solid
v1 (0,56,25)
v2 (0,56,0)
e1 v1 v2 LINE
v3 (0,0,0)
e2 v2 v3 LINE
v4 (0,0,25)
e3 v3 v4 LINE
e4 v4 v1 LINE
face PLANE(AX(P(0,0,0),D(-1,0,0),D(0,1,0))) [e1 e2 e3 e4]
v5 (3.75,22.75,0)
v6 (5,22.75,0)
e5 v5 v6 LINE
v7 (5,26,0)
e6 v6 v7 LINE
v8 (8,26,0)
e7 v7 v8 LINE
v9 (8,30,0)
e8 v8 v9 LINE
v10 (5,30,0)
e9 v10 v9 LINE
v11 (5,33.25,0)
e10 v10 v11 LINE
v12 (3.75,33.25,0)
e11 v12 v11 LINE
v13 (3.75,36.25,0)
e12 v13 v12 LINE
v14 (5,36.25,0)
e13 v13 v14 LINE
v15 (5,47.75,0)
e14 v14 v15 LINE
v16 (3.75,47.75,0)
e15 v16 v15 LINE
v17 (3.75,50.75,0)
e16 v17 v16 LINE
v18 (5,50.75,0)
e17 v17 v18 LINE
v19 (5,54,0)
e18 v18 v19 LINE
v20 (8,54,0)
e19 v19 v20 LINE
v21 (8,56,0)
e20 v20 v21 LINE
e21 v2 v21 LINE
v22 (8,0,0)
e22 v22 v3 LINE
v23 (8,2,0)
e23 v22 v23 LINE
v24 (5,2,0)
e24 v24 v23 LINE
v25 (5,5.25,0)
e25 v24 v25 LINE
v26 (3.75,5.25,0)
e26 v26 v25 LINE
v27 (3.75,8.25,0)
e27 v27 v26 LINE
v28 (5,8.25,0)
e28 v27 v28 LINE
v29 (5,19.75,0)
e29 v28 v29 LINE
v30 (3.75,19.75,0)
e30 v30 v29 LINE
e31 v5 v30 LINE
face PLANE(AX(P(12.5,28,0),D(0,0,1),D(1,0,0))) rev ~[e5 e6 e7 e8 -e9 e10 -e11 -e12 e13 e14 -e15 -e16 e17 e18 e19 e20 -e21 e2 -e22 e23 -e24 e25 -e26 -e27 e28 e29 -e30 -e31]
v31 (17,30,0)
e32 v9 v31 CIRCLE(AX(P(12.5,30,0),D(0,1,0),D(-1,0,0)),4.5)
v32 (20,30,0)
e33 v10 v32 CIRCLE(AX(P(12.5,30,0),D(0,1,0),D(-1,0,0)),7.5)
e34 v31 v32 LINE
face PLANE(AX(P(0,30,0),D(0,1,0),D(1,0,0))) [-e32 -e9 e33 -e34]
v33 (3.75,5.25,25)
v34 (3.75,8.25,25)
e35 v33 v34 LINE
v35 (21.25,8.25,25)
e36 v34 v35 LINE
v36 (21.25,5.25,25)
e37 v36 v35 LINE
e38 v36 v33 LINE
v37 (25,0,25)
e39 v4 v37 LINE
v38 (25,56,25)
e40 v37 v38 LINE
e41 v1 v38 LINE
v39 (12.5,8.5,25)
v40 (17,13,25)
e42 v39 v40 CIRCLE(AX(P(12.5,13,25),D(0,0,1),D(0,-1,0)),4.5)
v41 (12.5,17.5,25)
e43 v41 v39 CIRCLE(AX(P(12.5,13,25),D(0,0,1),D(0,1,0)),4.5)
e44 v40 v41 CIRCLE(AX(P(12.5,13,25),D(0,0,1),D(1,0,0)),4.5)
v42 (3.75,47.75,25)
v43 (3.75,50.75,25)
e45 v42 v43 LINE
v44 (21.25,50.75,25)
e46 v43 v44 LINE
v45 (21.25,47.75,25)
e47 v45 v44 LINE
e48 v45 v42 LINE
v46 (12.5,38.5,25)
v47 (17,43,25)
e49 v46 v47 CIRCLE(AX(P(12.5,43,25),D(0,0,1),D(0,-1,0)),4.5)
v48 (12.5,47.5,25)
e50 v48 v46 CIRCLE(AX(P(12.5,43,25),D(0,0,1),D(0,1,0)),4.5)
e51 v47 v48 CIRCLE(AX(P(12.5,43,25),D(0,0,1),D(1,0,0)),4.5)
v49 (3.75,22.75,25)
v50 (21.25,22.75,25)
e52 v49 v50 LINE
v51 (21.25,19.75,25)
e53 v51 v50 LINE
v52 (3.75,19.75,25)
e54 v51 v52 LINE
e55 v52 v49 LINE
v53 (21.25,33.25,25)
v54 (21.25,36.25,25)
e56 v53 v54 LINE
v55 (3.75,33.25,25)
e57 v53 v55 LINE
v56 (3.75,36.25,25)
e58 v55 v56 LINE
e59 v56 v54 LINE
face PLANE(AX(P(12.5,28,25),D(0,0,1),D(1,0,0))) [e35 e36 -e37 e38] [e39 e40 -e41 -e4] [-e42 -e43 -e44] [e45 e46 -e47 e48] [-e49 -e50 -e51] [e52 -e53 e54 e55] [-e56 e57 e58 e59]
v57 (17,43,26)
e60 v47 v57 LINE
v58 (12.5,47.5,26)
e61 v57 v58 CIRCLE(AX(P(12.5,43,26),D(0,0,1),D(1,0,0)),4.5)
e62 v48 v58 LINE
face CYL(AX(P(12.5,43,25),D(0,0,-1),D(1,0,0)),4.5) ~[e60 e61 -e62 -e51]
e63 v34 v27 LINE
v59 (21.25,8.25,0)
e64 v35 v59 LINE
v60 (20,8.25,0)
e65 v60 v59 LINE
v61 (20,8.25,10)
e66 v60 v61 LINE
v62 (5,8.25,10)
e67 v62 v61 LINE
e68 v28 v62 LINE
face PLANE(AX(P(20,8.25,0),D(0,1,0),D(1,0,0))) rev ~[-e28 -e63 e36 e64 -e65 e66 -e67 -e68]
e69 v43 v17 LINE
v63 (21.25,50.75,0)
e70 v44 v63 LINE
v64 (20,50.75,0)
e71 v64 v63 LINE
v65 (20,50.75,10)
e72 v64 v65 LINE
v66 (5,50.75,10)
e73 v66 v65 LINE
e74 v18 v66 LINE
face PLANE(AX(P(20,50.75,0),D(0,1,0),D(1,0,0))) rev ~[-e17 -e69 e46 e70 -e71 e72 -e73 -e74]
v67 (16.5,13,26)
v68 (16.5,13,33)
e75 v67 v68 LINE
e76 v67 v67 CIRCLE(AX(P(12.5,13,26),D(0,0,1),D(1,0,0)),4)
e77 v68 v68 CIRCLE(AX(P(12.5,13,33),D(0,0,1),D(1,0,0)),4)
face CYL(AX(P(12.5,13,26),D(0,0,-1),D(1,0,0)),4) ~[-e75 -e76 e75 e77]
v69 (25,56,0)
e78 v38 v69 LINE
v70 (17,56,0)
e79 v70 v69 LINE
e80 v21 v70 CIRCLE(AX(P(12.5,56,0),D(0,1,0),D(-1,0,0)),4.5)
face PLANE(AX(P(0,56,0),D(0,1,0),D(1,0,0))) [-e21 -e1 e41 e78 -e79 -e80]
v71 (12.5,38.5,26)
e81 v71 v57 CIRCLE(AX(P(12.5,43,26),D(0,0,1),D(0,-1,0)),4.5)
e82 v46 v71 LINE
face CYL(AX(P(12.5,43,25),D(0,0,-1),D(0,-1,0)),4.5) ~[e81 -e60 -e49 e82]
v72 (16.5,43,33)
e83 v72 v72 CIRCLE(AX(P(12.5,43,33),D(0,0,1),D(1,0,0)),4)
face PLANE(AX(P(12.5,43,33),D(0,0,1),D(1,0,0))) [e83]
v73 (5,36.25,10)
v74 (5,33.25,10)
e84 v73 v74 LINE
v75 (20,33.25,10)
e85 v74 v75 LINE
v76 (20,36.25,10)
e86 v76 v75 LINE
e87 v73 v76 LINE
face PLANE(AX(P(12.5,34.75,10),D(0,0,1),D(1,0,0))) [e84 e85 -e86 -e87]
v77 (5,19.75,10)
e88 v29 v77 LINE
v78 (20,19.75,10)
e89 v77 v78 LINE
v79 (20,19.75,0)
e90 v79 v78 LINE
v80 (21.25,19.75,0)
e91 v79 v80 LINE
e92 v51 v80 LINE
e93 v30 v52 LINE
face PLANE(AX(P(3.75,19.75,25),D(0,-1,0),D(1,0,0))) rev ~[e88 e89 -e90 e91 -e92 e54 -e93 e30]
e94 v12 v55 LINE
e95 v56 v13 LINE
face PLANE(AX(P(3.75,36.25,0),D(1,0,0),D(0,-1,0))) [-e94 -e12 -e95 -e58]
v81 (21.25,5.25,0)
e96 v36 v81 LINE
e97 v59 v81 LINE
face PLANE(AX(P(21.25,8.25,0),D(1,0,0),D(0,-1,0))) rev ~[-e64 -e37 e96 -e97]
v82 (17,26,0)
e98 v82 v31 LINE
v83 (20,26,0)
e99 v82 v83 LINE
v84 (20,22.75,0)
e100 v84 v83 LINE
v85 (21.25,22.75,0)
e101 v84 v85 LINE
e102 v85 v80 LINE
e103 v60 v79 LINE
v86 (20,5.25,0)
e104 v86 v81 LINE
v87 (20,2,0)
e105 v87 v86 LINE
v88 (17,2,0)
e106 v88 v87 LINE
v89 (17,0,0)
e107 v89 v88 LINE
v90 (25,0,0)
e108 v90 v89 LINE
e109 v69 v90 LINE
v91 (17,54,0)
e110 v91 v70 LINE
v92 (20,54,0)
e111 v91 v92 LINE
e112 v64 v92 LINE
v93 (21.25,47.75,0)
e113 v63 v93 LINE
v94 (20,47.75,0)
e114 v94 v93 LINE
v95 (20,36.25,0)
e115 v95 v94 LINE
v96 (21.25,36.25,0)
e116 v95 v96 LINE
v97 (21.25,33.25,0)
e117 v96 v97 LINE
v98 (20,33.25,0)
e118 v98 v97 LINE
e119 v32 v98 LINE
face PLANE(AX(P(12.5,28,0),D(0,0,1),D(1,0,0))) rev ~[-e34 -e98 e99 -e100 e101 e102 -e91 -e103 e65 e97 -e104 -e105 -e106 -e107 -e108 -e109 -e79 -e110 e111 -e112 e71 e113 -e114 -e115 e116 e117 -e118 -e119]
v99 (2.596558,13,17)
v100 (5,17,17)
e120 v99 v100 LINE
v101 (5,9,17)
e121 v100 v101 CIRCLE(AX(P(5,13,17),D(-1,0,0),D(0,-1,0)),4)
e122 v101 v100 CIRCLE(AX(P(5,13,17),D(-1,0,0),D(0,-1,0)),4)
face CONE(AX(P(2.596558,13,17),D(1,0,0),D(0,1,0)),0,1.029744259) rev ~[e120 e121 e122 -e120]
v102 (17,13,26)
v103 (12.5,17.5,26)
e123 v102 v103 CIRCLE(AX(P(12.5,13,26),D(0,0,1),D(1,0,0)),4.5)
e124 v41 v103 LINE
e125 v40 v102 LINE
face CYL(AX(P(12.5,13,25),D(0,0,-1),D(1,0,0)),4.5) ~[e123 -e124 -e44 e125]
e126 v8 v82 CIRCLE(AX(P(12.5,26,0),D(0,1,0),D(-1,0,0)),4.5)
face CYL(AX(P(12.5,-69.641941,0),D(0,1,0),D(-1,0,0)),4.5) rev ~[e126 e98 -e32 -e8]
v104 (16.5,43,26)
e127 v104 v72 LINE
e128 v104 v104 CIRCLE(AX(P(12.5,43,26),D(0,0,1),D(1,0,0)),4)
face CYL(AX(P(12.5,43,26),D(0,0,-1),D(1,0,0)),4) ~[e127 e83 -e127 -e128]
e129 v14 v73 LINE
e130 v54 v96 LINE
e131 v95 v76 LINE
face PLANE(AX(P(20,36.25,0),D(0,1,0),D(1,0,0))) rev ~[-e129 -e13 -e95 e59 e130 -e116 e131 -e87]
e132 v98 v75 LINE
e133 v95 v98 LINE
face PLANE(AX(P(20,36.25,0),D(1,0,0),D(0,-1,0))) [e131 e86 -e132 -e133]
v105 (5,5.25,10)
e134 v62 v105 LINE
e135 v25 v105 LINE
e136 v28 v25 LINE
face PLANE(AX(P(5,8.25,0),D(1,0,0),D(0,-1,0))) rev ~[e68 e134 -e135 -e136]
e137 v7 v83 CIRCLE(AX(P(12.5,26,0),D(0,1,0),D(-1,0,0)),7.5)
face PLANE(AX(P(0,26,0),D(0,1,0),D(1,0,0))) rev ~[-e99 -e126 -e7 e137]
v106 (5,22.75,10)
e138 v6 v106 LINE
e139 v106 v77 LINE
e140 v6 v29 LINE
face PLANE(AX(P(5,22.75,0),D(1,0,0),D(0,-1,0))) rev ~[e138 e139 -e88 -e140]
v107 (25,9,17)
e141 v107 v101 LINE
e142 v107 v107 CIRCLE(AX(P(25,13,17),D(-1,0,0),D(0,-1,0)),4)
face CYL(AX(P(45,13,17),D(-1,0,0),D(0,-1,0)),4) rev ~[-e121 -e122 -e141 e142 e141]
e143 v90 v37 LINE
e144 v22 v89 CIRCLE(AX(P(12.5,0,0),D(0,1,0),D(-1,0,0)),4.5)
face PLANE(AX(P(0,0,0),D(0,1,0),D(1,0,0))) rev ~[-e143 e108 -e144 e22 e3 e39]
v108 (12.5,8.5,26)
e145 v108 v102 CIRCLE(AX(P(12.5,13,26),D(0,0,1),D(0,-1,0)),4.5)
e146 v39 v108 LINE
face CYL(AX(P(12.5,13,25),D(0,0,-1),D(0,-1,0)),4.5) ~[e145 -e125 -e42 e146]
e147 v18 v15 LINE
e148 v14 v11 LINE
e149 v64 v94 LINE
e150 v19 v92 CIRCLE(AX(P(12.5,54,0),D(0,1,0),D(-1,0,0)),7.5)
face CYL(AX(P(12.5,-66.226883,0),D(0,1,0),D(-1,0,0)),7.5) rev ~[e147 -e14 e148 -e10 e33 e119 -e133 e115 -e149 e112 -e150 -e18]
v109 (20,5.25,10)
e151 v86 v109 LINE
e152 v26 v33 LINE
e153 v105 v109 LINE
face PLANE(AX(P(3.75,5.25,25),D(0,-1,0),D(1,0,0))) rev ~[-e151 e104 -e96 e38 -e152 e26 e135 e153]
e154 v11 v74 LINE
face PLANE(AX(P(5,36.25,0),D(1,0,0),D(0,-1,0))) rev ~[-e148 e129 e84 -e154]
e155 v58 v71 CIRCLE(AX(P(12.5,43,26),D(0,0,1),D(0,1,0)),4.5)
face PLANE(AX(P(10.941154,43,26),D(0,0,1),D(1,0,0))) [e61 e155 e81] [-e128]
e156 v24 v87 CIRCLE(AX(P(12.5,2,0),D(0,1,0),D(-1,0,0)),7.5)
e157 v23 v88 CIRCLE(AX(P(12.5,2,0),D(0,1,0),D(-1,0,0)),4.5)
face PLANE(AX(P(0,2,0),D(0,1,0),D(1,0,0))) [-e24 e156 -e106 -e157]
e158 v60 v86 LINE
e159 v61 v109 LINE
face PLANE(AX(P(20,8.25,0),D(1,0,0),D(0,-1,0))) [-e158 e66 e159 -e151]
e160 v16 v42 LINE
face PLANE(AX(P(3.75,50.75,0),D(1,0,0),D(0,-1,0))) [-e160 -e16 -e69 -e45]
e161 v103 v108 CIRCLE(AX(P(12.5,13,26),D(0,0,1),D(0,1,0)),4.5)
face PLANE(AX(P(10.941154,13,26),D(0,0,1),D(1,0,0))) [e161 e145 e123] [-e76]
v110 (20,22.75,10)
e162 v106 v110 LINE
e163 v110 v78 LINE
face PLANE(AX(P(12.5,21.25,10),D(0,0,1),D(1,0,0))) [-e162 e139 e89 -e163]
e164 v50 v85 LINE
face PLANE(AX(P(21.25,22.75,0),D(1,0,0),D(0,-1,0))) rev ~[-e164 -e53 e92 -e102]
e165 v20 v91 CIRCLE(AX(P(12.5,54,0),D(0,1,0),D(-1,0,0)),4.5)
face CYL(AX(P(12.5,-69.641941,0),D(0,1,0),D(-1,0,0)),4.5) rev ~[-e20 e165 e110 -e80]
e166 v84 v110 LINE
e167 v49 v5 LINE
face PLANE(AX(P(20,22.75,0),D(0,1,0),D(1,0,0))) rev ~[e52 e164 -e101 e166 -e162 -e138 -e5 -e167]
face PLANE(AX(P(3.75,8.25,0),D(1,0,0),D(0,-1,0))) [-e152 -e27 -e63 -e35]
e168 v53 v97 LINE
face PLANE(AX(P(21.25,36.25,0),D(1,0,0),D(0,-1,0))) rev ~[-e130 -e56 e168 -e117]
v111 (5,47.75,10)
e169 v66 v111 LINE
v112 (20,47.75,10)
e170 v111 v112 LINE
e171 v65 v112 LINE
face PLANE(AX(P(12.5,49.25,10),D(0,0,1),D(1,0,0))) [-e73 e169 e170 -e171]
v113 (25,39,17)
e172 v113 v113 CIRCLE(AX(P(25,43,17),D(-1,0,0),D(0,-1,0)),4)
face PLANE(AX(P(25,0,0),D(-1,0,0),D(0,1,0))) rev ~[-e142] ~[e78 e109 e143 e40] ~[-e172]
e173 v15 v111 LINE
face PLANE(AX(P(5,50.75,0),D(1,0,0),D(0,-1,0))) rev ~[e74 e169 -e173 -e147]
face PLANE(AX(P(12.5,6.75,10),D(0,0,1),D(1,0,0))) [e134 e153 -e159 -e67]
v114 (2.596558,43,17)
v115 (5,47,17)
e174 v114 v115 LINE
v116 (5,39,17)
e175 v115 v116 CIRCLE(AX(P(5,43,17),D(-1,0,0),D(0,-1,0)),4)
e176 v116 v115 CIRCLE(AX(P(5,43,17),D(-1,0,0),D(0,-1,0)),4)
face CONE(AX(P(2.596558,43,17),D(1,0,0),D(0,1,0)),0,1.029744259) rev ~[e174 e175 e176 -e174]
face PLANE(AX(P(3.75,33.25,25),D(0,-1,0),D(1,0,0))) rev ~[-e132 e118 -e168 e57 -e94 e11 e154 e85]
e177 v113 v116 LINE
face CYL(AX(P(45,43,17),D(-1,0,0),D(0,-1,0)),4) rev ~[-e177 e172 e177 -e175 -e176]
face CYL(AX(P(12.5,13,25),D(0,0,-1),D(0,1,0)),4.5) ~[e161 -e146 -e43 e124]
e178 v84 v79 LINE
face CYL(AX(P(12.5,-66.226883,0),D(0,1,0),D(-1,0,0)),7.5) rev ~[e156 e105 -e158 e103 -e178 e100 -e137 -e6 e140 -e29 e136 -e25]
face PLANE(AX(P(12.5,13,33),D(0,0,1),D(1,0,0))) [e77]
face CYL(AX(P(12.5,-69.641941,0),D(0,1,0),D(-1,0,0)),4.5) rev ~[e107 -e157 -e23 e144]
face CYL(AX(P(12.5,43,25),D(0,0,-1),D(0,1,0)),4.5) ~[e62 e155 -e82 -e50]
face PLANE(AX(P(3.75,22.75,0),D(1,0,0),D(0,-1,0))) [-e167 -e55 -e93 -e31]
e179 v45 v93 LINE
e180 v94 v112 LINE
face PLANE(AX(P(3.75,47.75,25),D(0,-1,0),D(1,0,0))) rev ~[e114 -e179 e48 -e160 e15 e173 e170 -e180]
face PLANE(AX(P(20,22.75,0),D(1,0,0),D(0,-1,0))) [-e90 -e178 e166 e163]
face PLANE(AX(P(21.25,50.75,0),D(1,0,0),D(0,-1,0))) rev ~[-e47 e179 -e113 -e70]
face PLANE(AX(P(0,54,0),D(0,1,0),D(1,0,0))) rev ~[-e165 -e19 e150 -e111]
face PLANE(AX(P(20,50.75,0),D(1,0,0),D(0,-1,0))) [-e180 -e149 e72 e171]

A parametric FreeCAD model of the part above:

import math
import FreeCAD as App
import Part
import Sketcher

V = App.Vector
Q = App.Units.Quantity

doc = App.newDocument("Part")
params = doc.addObject("Spreadsheet::Sheet", "Params")
for row, (alias, value) in enumerate([
    ("sketch1_width", "25 mm"),
    ("sketch1_height", "56 mm"),
    ("pad1_length", "25 mm"),
    ("sketch2_diameter", "15 mm"),
    ("hole_diameter", "15 mm"),
    ("sketch3_diameter", "8 mm"),
    ("hole2_diameter", "8 mm"),
    ("hole2_depth", "20 mm"),
    ("sketch4_radius", "4.5 mm"),
    ("pad2_length", "1 mm"),
    ("sketch5_width", "25 mm"),
    ("sketch5_height", "2 mm"),
    ("sketch5_height2", "4 mm"),
    ("pad3_length", "8 mm"),
    ("sketch6_height", "3 mm"),
    ("sketch6_width", "1.25 mm"),
    ("sketch7_height", "3 mm"),
    ("sketch7_width", "17.5 mm"),
    ("pocket2_length", "15 mm"),
    ("sketch8_diameter", "8 mm"),
    ("pad4_length", "7 mm"),
    ("sketch9_diameter", "9 mm"),
    ("hole3_diameter", "9 mm"),
], start=1):
    params.set(f"A{row}", alias)
    params.set(f"B{row}", "=" + value)
    params.setAlias(f"B{row}", alias)

body = doc.addObject("PartDesign::Body", "Body")

sketch1 = doc.addObject("Sketcher::SketchObject", "Sketch")
body.addObject(sketch1)
sketch1.AttachmentSupport = (doc.XY_Plane, [""])
sketch1.MapMode = "FlatFace"
sketch1.addGeometry(Part.LineSegment(V(0, 56, 0), V(0, 0, 0)), False)
sketch1.addGeometry(Part.LineSegment(V(0, 0, 0), V(25, 0, 0)), False)
sketch1.addGeometry(Part.LineSegment(V(25, 0, 0), V(25, 56, 0)), False)
sketch1.addGeometry(Part.LineSegment(V(25, 56, 0), V(0, 56, 0)), False)
sketch1.addConstraint(Sketcher.Constraint("Coincident", 0, 2, 1, 1))
sketch1.addConstraint(Sketcher.Constraint("Coincident", 1, 2, 2, 1))
sketch1.addConstraint(Sketcher.Constraint("Coincident", 2, 2, 3, 1))
sketch1.addConstraint(Sketcher.Constraint("Coincident", 3, 2, 0, 1))
sketch1.addConstraint(Sketcher.Constraint("Vertical", 0))
sketch1.addConstraint(Sketcher.Constraint("Horizontal", 1))
sketch1.addConstraint(Sketcher.Constraint("Vertical", 2))
sketch1.addConstraint(Sketcher.Constraint("Horizontal", 3))
sketch1.addConstraint(Sketcher.Constraint("Coincident", 0, 2, -1, 1))
sketch1.addConstraint(Sketcher.Constraint("DistanceX", 1, 1, 1, 2, Q("25 mm")))
sketch1.addConstraint(Sketcher.Constraint("DistanceY", 0, 2, 0, 1, Q("56 mm")))
sketch1.setExpression("Constraints[9]", "Params.sketch1_width")
sketch1.setExpression("Constraints[10]", "Params.sketch1_height")
pad1 = doc.addObject("PartDesign::Pad", "Pad")
body.addObject(pad1)
pad1.Profile = sketch1
pad1.setExpression("Length", "Params.pad1_length")

sketch2 = doc.addObject("Sketcher::SketchObject", "Sketch001")
body.addObject(sketch2)
sketch2.AttachmentSupport = (doc.XZ_Plane, [""])
sketch2.MapMode = "FlatFace"
sketch2.addGeometry(Part.Circle(V(12, 0, 0), V(0, 0, 1), 8), False)
sketch2.addConstraint(Sketcher.Constraint("PointOnObject", 0, 3, -1))
sketch2.addConstraint(Sketcher.Constraint("Diameter", 0, Q("15 mm")))
sketch2.addConstraint(Sketcher.Constraint("DistanceX", -1, 1, 0, 3, Q("12.5 mm")))
sketch2.setExpression("Constraints[1]", "Params.sketch2_diameter")
doc.recompute()
hole = doc.addObject("PartDesign::Hole", "Hole")
body.addObject(hole)
hole.Profile = sketch2
hole.ThreadType = "None"
hole.setExpression("Diameter", "Params.hole_diameter")
hole.DepthType = "ThroughAll"

sketch3 = doc.addObject("Sketcher::SketchObject", "Sketch002")
body.addObject(sketch3)
sketch3.AttachmentSupport = (doc.YZ_Plane, [""])
sketch3.MapMode = "FlatFace"
sketch3.AttachmentOffset = App.Placement(V(0, 0, 25), App.Rotation())
sketch3.addGeometry(Part.Circle(V(13, 17, 0), V(0, 0, 1), 4), False)
sketch3.addGeometry(Part.Circle(V(43, 17, 0), V(0, 0, 1), 4), False)
sketch3.addConstraint(Sketcher.Constraint("Equal", 0, 1))
sketch3.addConstraint(Sketcher.Constraint("Horizontal", 0, 3, 1, 3))
sketch3.addConstraint(Sketcher.Constraint("Diameter", 0, Q("8 mm")))
sketch3.addConstraint(Sketcher.Constraint("DistanceX", -1, 1, 0, 3, Q("13 mm")))
sketch3.addConstraint(Sketcher.Constraint("DistanceY", -1, 1, 0, 3, Q("17 mm")))
sketch3.addConstraint(Sketcher.Constraint("DistanceX", -1, 1, 1, 3, Q("43 mm")))
sketch3.setExpression("Constraints[2]", "Params.sketch3_diameter")
doc.recompute()
hole2 = doc.addObject("PartDesign::Hole", "Hole001")
body.addObject(hole2)
hole2.Profile = sketch3
hole2.ThreadType = "None"
hole2.setExpression("Diameter", "Params.hole2_diameter")
hole2.DepthType = "Dimension"
hole2.setExpression("Depth", "Params.hole2_depth")
hole2.DrillPoint = "Angled"
hole2.DrillPointAngle = 118

sketch4 = doc.addObject("Sketcher::SketchObject", "Sketch003")
body.addObject(sketch4)
sketch4.AttachmentSupport = (doc.XY_Plane, [""])
sketch4.MapMode = "FlatFace"
sketch4.AttachmentOffset = App.Placement(V(0, 0, 25), App.Rotation())
sketch4.addGeometry(Part.ArcOfCircle(Part.Circle(V(12.5, 13, 0), V(0, 0, 1), 4.5), math.radians(90), math.radians(270)), False)
sketch4.addGeometry(Part.ArcOfCircle(Part.Circle(V(12.5, 13, 0), V(0, 0, 1), 4.5), math.radians(-90), math.radians(0)), False)
sketch4.addGeometry(Part.ArcOfCircle(Part.Circle(V(12.5, 13, 0), V(0, 0, 1), 4.5), math.radians(0), math.radians(90)), False)
sketch4.addGeometry(Part.ArcOfCircle(Part.Circle(V(12.5, 43, 0), V(0, 0, 1), 4.5), math.radians(90), math.radians(270)), False)
sketch4.addGeometry(Part.ArcOfCircle(Part.Circle(V(12.5, 43, 0), V(0, 0, 1), 4.5), math.radians(-90), math.radians(0)), False)
sketch4.addGeometry(Part.ArcOfCircle(Part.Circle(V(12.5, 43, 0), V(0, 0, 1), 4.5), math.radians(0), math.radians(90)), False)
sketch4.addConstraint(Sketcher.Constraint("Tangent", 0, 2, 1, 1))
sketch4.addConstraint(Sketcher.Constraint("Tangent", 1, 2, 2, 1))
sketch4.addConstraint(Sketcher.Constraint("Tangent", 2, 2, 0, 1))
sketch4.addConstraint(Sketcher.Constraint("Tangent", 3, 2, 4, 1))
sketch4.addConstraint(Sketcher.Constraint("Tangent", 4, 2, 5, 1))
sketch4.addConstraint(Sketcher.Constraint("Tangent", 5, 2, 3, 1))
sketch4.addConstraint(Sketcher.Constraint("Equal", 2, 3))
sketch4.addConstraint(Sketcher.Constraint("Horizontal", 2, 3, 1, 2))
sketch4.addConstraint(Sketcher.Constraint("Horizontal", 5, 3, 4, 2))
sketch4.addConstraint(Sketcher.Constraint("Vertical", 2, 3, 3, 3))
sketch4.addConstraint(Sketcher.Constraint("Vertical", 5, 3, 0, 2))
sketch4.addConstraint(Sketcher.Constraint("Vertical", 0, 2, 2, 2))
sketch4.addConstraint(Sketcher.Constraint("Vertical", 2, 2, 3, 2))
sketch4.addConstraint(Sketcher.Constraint("Vertical", 3, 2, 5, 2))
sketch4.addConstraint(Sketcher.Constraint("Radius", 0, Q("4.5 mm")))
sketch4.addConstraint(Sketcher.Constraint("DistanceY", -1, 1, 0, 3, Q("13 mm")))
sketch4.addConstraint(Sketcher.Constraint("DistanceY", -1, 1, 3, 3, Q("43 mm")))
sketch4.addConstraint(Sketcher.Constraint("DistanceX", -1, 1, 1, 2, Q("17 mm")))
sketch4.setExpression("Constraints[14]", "Params.sketch4_radius")
pad2 = doc.addObject("PartDesign::Pad", "Pad001")
body.addObject(pad2)
pad2.Profile = sketch4
pad2.setExpression("Length", "Params.pad2_length")

sketch5 = doc.addObject("Sketcher::SketchObject", "Sketch004")
body.addObject(sketch5)
sketch5.AttachmentSupport = (doc.XY_Plane, [""])
sketch5.MapMode = "FlatFace"
sketch5.addGeometry(Part.LineSegment(V(0, 0, 0), V(0, 2, 0)), False)
sketch5.addGeometry(Part.LineSegment(V(0, 2, 0), V(25, 2, 0)), False)
sketch5.addGeometry(Part.LineSegment(V(25, 2, 0), V(25, 0, 0)), False)
sketch5.addGeometry(Part.LineSegment(V(25, 0, 0), V(0, 0, 0)), False)
sketch5.addGeometry(Part.LineSegment(V(0, 26, 0), V(0, 30, 0)), False)
sketch5.addGeometry(Part.LineSegment(V(0, 30, 0), V(25, 30, 0)), False)
sketch5.addGeometry(Part.LineSegment(V(25, 30, 0), V(25, 26, 0)), False)
sketch5.addGeometry(Part.LineSegment(V(25, 26, 0), V(0, 26, 0)), False)
sketch5.addGeometry(Part.LineSegment(V(0, 54, 0), V(0, 56, 0)), False)
sketch5.addGeometry(Part.LineSegment(V(0, 56, 0), V(25, 56, 0)), False)
sketch5.addGeometry(Part.LineSegment(V(25, 56, 0), V(25, 54, 0)), False)
sketch5.addGeometry(Part.LineSegment(V(25, 54, 0), V(0, 54, 0)), False)
sketch5.addConstraint(Sketcher.Constraint("Coincident", 0, 2, 1, 1))
sketch5.addConstraint(Sketcher.Constraint("Coincident", 1, 2, 2, 1))
sketch5.addConstraint(Sketcher.Constraint("Coincident", 2, 2, 3, 1))
sketch5.addConstraint(Sketcher.Constraint("Coincident", 3, 2, 0, 1))
sketch5.addConstraint(Sketcher.Constraint("Coincident", 4, 2, 5, 1))
sketch5.addConstraint(Sketcher.Constraint("Coincident", 5, 2, 6, 1))
sketch5.addConstraint(Sketcher.Constraint("Coincident", 6, 2, 7, 1))
sketch5.addConstraint(Sketcher.Constraint("Coincident", 7, 2, 4, 1))
sketch5.addConstraint(Sketcher.Constraint("Coincident", 8, 2, 9, 1))
sketch5.addConstraint(Sketcher.Constraint("Coincident", 9, 2, 10, 1))
sketch5.addConstraint(Sketcher.Constraint("Coincident", 10, 2, 11, 1))
sketch5.addConstraint(Sketcher.Constraint("Coincident", 11, 2, 8, 1))
sketch5.addConstraint(Sketcher.Constraint("Vertical", 0))
sketch5.addConstraint(Sketcher.Constraint("Horizontal", 1))
sketch5.addConstraint(Sketcher.Constraint("Vertical", 2))
sketch5.addConstraint(Sketcher.Constraint("Horizontal", 3))
sketch5.addConstraint(Sketcher.Constraint("Vertical", 4))
sketch5.addConstraint(Sketcher.Constraint("Horizontal", 5))
sketch5.addConstraint(Sketcher.Constraint("Vertical", 6))
sketch5.addConstraint(Sketcher.Constraint("Horizontal", 7))
sketch5.addConstraint(Sketcher.Constraint("Vertical", 8))
sketch5.addConstraint(Sketcher.Constraint("Horizontal", 9))
sketch5.addConstraint(Sketcher.Constraint("Vertical", 10))
sketch5.addConstraint(Sketcher.Constraint("Horizontal", 11))
sketch5.addConstraint(Sketcher.Constraint("Coincident", 3, 2, -1, 1))
sketch5.addConstraint(Sketcher.Constraint("PointOnObject", 4, 2, -2))
sketch5.addConstraint(Sketcher.Constraint("PointOnObject", 8, 2, -2))
sketch5.addConstraint(Sketcher.Constraint("Vertical", 2, 2, 5, 2))
sketch5.addConstraint(Sketcher.Constraint("Vertical", 6, 2, 9, 2))
sketch5.addConstraint(Sketcher.Constraint("Equal", 2, 8))
sketch5.addConstraint(Sketcher.Constraint("DistanceX", 1, 1, 1, 2, Q("25 mm")))
sketch5.addConstraint(Sketcher.Constraint("DistanceY", 0, 1, 0, 2, Q("2 mm")))
sketch5.addConstraint(Sketcher.Constraint("DistanceY", 4, 1, 4, 2, Q("4 mm")))
sketch5.addConstraint(Sketcher.Constraint("DistanceY", -1, 1, 4, 2, Q("30 mm")))
sketch5.addConstraint(Sketcher.Constraint("DistanceY", -1, 1, 8, 2, Q("56 mm")))
sketch5.setExpression("Constraints[30]", "Params.sketch5_width")
sketch5.setExpression("Constraints[31]", "Params.sketch5_height")
sketch5.setExpression("Constraints[32]", "Params.sketch5_height2")
pad3 = doc.addObject("PartDesign::Pad", "Pad002")
body.addObject(pad3)
pad3.Profile = sketch5
pad3.setExpression("Length", "Params.pad3_length")

sketch6 = doc.addObject("Sketcher::SketchObject", "Sketch005")
body.addObject(sketch6)
sketch6.AttachmentSupport = (doc.XY_Plane, [""])
sketch6.MapMode = "FlatFace"
sketch6.addGeometry(Part.LineSegment(V(3.8, 5.2, 0), V(3.8, 8.2, 0)), False)
sketch6.addGeometry(Part.LineSegment(V(3.8, 8.2, 0), V(5, 8.2, 0)), False)
sketch6.addGeometry(Part.LineSegment(V(5, 8.2, 0), V(5, 5.2, 0)), False)
sketch6.addGeometry(Part.LineSegment(V(5, 5.2, 0), V(3.8, 5.2, 0)), False)
sketch6.addGeometry(Part.LineSegment(V(20, 5.2, 0), V(20, 8.2, 0)), False)
sketch6.addGeometry(Part.LineSegment(V(20, 8.2, 0), V(21.2, 8.2, 0)), False)
sketch6.addGeometry(Part.LineSegment(V(21.2, 8.2, 0), V(21.2, 5.2, 0)), False)
sketch6.addGeometry(Part.LineSegment(V(21.2, 5.2, 0), V(20, 5.2, 0)), False)
sketch6.addGeometry(Part.LineSegment(V(3.8, 19.8, 0), V(3.8, 22.8, 0)), False)
sketch6.addGeometry(Part.LineSegment(V(3.8, 22.8, 0), V(5, 22.8, 0)), False)
sketch6.addGeometry(Part.LineSegment(V(5, 22.8, 0), V(5, 19.8, 0)), False)
sketch6.addGeometry(Part.LineSegment(V(5, 19.8, 0), V(3.8, 19.8, 0)), False)
sketch6.addGeometry(Part.LineSegment(V(20, 19.8, 0), V(20, 22.8, 0)), False)
sketch6.addGeometry(Part.LineSegment(V(20, 22.8, 0), V(21.2, 22.8, 0)), False)
sketch6.addGeometry(Part.LineSegment(V(21.2, 22.8, 0), V(21.2, 19.8, 0)), False)
sketch6.addGeometry(Part.LineSegment(V(21.2, 19.8, 0), V(20, 19.8, 0)), False)
sketch6.addGeometry(Part.LineSegment(V(20, 47.8, 0), V(20, 50.8, 0)), False)
sketch6.addGeometry(Part.LineSegment(V(20, 50.8, 0), V(21.2, 50.8, 0)), False)
sketch6.addGeometry(Part.LineSegment(V(21.2, 50.8, 0), V(21.2, 47.8, 0)), False)
sketch6.addGeometry(Part.LineSegment(V(21.2, 47.8, 0), V(20, 47.8, 0)), False)
sketch6.addGeometry(Part.LineSegment(V(3.8, 47.8, 0), V(3.8, 50.8, 0)), False)
sketch6.addGeometry(Part.LineSegment(V(3.8, 50.8, 0), V(5, 50.8, 0)), False)
sketch6.addGeometry(Part.LineSegment(V(5, 50.8, 0), V(5, 47.8, 0)), False)
sketch6.addGeometry(Part.LineSegment(V(5, 47.8, 0), V(3.8, 47.8, 0)), False)
sketch6.addGeometry(Part.LineSegment(V(20, 33.2, 0), V(20, 36.2, 0)), False)
sketch6.addGeometry(Part.LineSegment(V(20, 36.2, 0), V(21.2, 36.2, 0)), False)
sketch6.addGeometry(Part.LineSegment(V(21.2, 36.2, 0), V(21.2, 33.2, 0)), False)
sketch6.addGeometry(Part.LineSegment(V(21.2, 33.2, 0), V(20, 33.2, 0)), False)
sketch6.addGeometry(Part.LineSegment(V(3.8, 33.2, 0), V(3.8, 36.2, 0)), False)
sketch6.addGeometry(Part.LineSegment(V(3.8, 36.2, 0), V(5, 36.2, 0)), False)
sketch6.addGeometry(Part.LineSegment(V(5, 36.2, 0), V(5, 33.2, 0)), False)
sketch6.addGeometry(Part.LineSegment(V(5, 33.2, 0), V(3.8, 33.2, 0)), False)
sketch6.addConstraint(Sketcher.Constraint("Coincident", 0, 2, 1, 1))
sketch6.addConstraint(Sketcher.Constraint("Coincident", 1, 2, 2, 1))
sketch6.addConstraint(Sketcher.Constraint("Coincident", 2, 2, 3, 1))
sketch6.addConstraint(Sketcher.Constraint("Coincident", 3, 2, 0, 1))
sketch6.addConstraint(Sketcher.Constraint("Coincident", 4, 2, 5, 1))
sketch6.addConstraint(Sketcher.Constraint("Coincident", 5, 2, 6, 1))
sketch6.addConstraint(Sketcher.Constraint("Coincident", 6, 2, 7, 1))
sketch6.addConstraint(Sketcher.Constraint("Coincident", 7, 2, 4, 1))
sketch6.addConstraint(Sketcher.Constraint("Coincident", 8, 2, 9, 1))
sketch6.addConstraint(Sketcher.Constraint("Coincident", 9, 2, 10, 1))
sketch6.addConstraint(Sketcher.Constraint("Coincident", 10, 2, 11, 1))
sketch6.addConstraint(Sketcher.Constraint("Coincident", 11, 2, 8, 1))
sketch6.addConstraint(Sketcher.Constraint("Coincident", 12, 2, 13, 1))
sketch6.addConstraint(Sketcher.Constraint("Coincident", 13, 2, 14, 1))
sketch6.addConstraint(Sketcher.Constraint("Coincident", 14, 2, 15, 1))
sketch6.addConstraint(Sketcher.Constraint("Coincident", 15, 2, 12, 1))
sketch6.addConstraint(Sketcher.Constraint("Coincident", 16, 2, 17, 1))
sketch6.addConstraint(Sketcher.Constraint("Coincident", 17, 2, 18, 1))
sketch6.addConstraint(Sketcher.Constraint("Coincident", 18, 2, 19, 1))
sketch6.addConstraint(Sketcher.Constraint("Coincident", 19, 2, 16, 1))
sketch6.addConstraint(Sketcher.Constraint("Coincident", 20, 2, 21, 1))
sketch6.addConstraint(Sketcher.Constraint("Coincident", 21, 2, 22, 1))
sketch6.addConstraint(Sketcher.Constraint("Coincident", 22, 2, 23, 1))
sketch6.addConstraint(Sketcher.Constraint("Coincident", 23, 2, 20, 1))
sketch6.addConstraint(Sketcher.Constraint("Coincident", 24, 2, 25, 1))
sketch6.addConstraint(Sketcher.Constraint("Coincident", 25, 2, 26, 1))
sketch6.addConstraint(Sketcher.Constraint("Coincident", 26, 2, 27, 1))
sketch6.addConstraint(Sketcher.Constraint("Coincident", 27, 2, 24, 1))
sketch6.addConstraint(Sketcher.Constraint("Coincident", 28, 2, 29, 1))
sketch6.addConstraint(Sketcher.Constraint("Coincident", 29, 2, 30, 1))
sketch6.addConstraint(Sketcher.Constraint("Coincident", 30, 2, 31, 1))
sketch6.addConstraint(Sketcher.Constraint("Coincident", 31, 2, 28, 1))
sketch6.addConstraint(Sketcher.Constraint("Vertical", 0))
sketch6.addConstraint(Sketcher.Constraint("Horizontal", 1))
sketch6.addConstraint(Sketcher.Constraint("Vertical", 2))
sketch6.addConstraint(Sketcher.Constraint("Horizontal", 3))
sketch6.addConstraint(Sketcher.Constraint("Vertical", 4))
sketch6.addConstraint(Sketcher.Constraint("Horizontal", 5))
sketch6.addConstraint(Sketcher.Constraint("Vertical", 6))
sketch6.addConstraint(Sketcher.Constraint("Horizontal", 7))
sketch6.addConstraint(Sketcher.Constraint("Vertical", 8))
sketch6.addConstraint(Sketcher.Constraint("Horizontal", 9))
sketch6.addConstraint(Sketcher.Constraint("Vertical", 10))
sketch6.addConstraint(Sketcher.Constraint("Horizontal", 11))
sketch6.addConstraint(Sketcher.Constraint("Vertical", 12))
sketch6.addConstraint(Sketcher.Constraint("Horizontal", 13))
sketch6.addConstraint(Sketcher.Constraint("Vertical", 14))
sketch6.addConstraint(Sketcher.Constraint("Horizontal", 15))
sketch6.addConstraint(Sketcher.Constraint("Vertical", 16))
sketch6.addConstraint(Sketcher.Constraint("Horizontal", 17))
sketch6.addConstraint(Sketcher.Constraint("Vertical", 18))
sketch6.addConstraint(Sketcher.Constraint("Horizontal", 19))
sketch6.addConstraint(Sketcher.Constraint("Vertical", 20))
sketch6.addConstraint(Sketcher.Constraint("Horizontal", 21))
sketch6.addConstraint(Sketcher.Constraint("Vertical", 22))
sketch6.addConstraint(Sketcher.Constraint("Horizontal", 23))
sketch6.addConstraint(Sketcher.Constraint("Vertical", 24))
sketch6.addConstraint(Sketcher.Constraint("Horizontal", 25))
sketch6.addConstraint(Sketcher.Constraint("Vertical", 26))
sketch6.addConstraint(Sketcher.Constraint("Horizontal", 27))
sketch6.addConstraint(Sketcher.Constraint("Vertical", 28))
sketch6.addConstraint(Sketcher.Constraint("Horizontal", 29))
sketch6.addConstraint(Sketcher.Constraint("Vertical", 30))
sketch6.addConstraint(Sketcher.Constraint("Horizontal", 31))
sketch6.addConstraint(Sketcher.Constraint("Horizontal", 1, 2, 4, 2))
sketch6.addConstraint(Sketcher.Constraint("Horizontal", 3, 2, 6, 2))
sketch6.addConstraint(Sketcher.Constraint("Horizontal", 9, 2, 12, 2))
sketch6.addConstraint(Sketcher.Constraint("Horizontal", 11, 2, 14, 2))
sketch6.addConstraint(Sketcher.Constraint("Horizontal", 17, 2, 20, 2))
sketch6.addConstraint(Sketcher.Constraint("Horizontal", 19, 2, 22, 2))
sketch6.addConstraint(Sketcher.Constraint("Horizontal", 25, 2, 28, 2))
sketch6.addConstraint(Sketcher.Constraint("Horizontal", 27, 2, 30, 2))
sketch6.addConstraint(Sketcher.Constraint("Vertical", 3, 2, 8, 2))
sketch6.addConstraint(Sketcher.Constraint("Vertical", 2, 2, 9, 2))
sketch6.addConstraint(Sketcher.Constraint("Vertical", 7, 2, 12, 2))
sketch6.addConstraint(Sketcher.Constraint("Vertical", 6, 2, 13, 2))
sketch6.addConstraint(Sketcher.Constraint("Vertical", 15, 2, 16, 2))
sketch6.addConstraint(Sketcher.Constraint("Vertical", 14, 2, 17, 2))
sketch6.addConstraint(Sketcher.Constraint("Vertical", 11, 2, 20, 2))
sketch6.addConstraint(Sketcher.Constraint("Vertical", 10, 2, 21, 2))
sketch6.addConstraint(Sketcher.Constraint("Vertical", 19, 2, 24, 2))
sketch6.addConstraint(Sketcher.Constraint("Vertical", 18, 2, 25, 2))
sketch6.addConstraint(Sketcher.Constraint("Vertical", 23, 2, 28, 2))
sketch6.addConstraint(Sketcher.Constraint("Vertical", 22, 2, 29, 2))
sketch6.addConstraint(Sketcher.Constraint("Equal", 3, 5))
sketch6.addConstraint(Sketcher.Constraint("Equal", 6, 8))
sketch6.addConstraint(Sketcher.Constraint("Equal", 14, 16))
sketch6.addConstraint(Sketcher.Constraint("Equal", 22, 24))
sketch6.addConstraint(Sketcher.Constraint("DistanceY", 0, 1, 0, 2, Q("3 mm")))
sketch6.addConstraint(Sketcher.Constraint("DistanceX", -1, 1, 1, 2, Q("5 mm")))
sketch6.addConstraint(Sketcher.Constraint("DistanceX", -1, 1, 4, 2, Q("20 mm")))
sketch6.addConstraint(Sketcher.Constraint("DistanceY", 12, 2, 16, 2, Q("28 mm")))
sketch6.addConstraint(Sketcher.Constraint("DistanceX", 1, 1, 1, 2, Q("1.25 mm")))
sketch6.addConstraint(Sketcher.Constraint("DistanceY", 0, 2, 8, 2, Q("14.5 mm")))
sketch6.addConstraint(Sketcher.Constraint("DistanceY", 24, 2, 19, 2, Q("11.5 mm")))
sketch6.addConstraint(Sketcher.Constraint("DistanceY", -1, 1, 0, 2, Q("8.25 mm")))
sketch6.setExpression("Constraints[88]", "Params.sketch6_height")
sketch6.setExpression("Constraints[92]", "Params.sketch6_width")
pocket1 = doc.addObject("PartDesign::Pocket", "Pocket")
body.addObject(pocket1)
pocket1.Profile = sketch6
pocket1.Type = "ThroughAll"
pocket1.Reversed = True

sketch7 = doc.addObject("Sketcher::SketchObject", "Sketch006")
body.addObject(sketch7)
sketch7.AttachmentSupport = (doc.XY_Plane, [""])
sketch7.MapMode = "FlatFace"
sketch7.AttachmentOffset = App.Placement(V(0, 0, 25), App.Rotation())
sketch7.addGeometry(Part.LineSegment(V(3.8, 8.2, 0), V(3.8, 5.2, 0)), False)
sketch7.addGeometry(Part.LineSegment(V(3.8, 5.2, 0), V(21.2, 5.2, 0)), False)
sketch7.addGeometry(Part.LineSegment(V(21.2, 5.2, 0), V(21.2, 8.2, 0)), False)
sketch7.addGeometry(Part.LineSegment(V(21.2, 8.2, 0), V(3.8, 8.2, 0)), False)
sketch7.addGeometry(Part.LineSegment(V(3.8, 22.8, 0), V(3.8, 19.8, 0)), False)
sketch7.addGeometry(Part.LineSegment(V(3.8, 19.8, 0), V(21.2, 19.8, 0)), False)
sketch7.addGeometry(Part.LineSegment(V(21.2, 19.8, 0), V(21.2, 22.8, 0)), False)
sketch7.addGeometry(Part.LineSegment(V(21.2, 22.8, 0), V(3.8, 22.8, 0)), False)
sketch7.addGeometry(Part.LineSegment(V(3.8, 36.2, 0), V(3.8, 33.2, 0)), False)
sketch7.addGeometry(Part.LineSegment(V(3.8, 33.2, 0), V(21.2, 33.2, 0)), False)
sketch7.addGeometry(Part.LineSegment(V(21.2, 33.2, 0), V(21.2, 36.2, 0)), False)
sketch7.addGeometry(Part.LineSegment(V(21.2, 36.2, 0), V(3.8, 36.2, 0)), False)
sketch7.addGeometry(Part.LineSegment(V(3.8, 50.8, 0), V(3.8, 47.8, 0)), False)
sketch7.addGeometry(Part.LineSegment(V(3.8, 47.8, 0), V(21.2, 47.8, 0)), False)
sketch7.addGeometry(Part.LineSegment(V(21.2, 47.8, 0), V(21.2, 50.8, 0)), False)
sketch7.addGeometry(Part.LineSegment(V(21.2, 50.8, 0), V(3.8, 50.8, 0)), False)
sketch7.addConstraint(Sketcher.Constraint("Coincident", 0, 2, 1, 1))
sketch7.addConstraint(Sketcher.Constraint("Coincident", 1, 2, 2, 1))
sketch7.addConstraint(Sketcher.Constraint("Coincident", 2, 2, 3, 1))
sketch7.addConstraint(Sketcher.Constraint("Coincident", 3, 2, 0, 1))
sketch7.addConstraint(Sketcher.Constraint("Coincident", 4, 2, 5, 1))
sketch7.addConstraint(Sketcher.Constraint("Coincident", 5, 2, 6, 1))
sketch7.addConstraint(Sketcher.Constraint("Coincident", 6, 2, 7, 1))
sketch7.addConstraint(Sketcher.Constraint("Coincident", 7, 2, 4, 1))
sketch7.addConstraint(Sketcher.Constraint("Coincident", 8, 2, 9, 1))
sketch7.addConstraint(Sketcher.Constraint("Coincident", 9, 2, 10, 1))
sketch7.addConstraint(Sketcher.Constraint("Coincident", 10, 2, 11, 1))
sketch7.addConstraint(Sketcher.Constraint("Coincident", 11, 2, 8, 1))
sketch7.addConstraint(Sketcher.Constraint("Coincident", 12, 2, 13, 1))
sketch7.addConstraint(Sketcher.Constraint("Coincident", 13, 2, 14, 1))
sketch7.addConstraint(Sketcher.Constraint("Coincident", 14, 2, 15, 1))
sketch7.addConstraint(Sketcher.Constraint("Coincident", 15, 2, 12, 1))
sketch7.addConstraint(Sketcher.Constraint("Vertical", 0))
sketch7.addConstraint(Sketcher.Constraint("Horizontal", 1))
sketch7.addConstraint(Sketcher.Constraint("Vertical", 2))
sketch7.addConstraint(Sketcher.Constraint("Horizontal", 3))
sketch7.addConstraint(Sketcher.Constraint("Vertical", 4))
sketch7.addConstraint(Sketcher.Constraint("Horizontal", 5))
sketch7.addConstraint(Sketcher.Constraint("Vertical", 6))
sketch7.addConstraint(Sketcher.Constraint("Horizontal", 7))
sketch7.addConstraint(Sketcher.Constraint("Vertical", 8))
sketch7.addConstraint(Sketcher.Constraint("Horizontal", 9))
sketch7.addConstraint(Sketcher.Constraint("Vertical", 10))
sketch7.addConstraint(Sketcher.Constraint("Horizontal", 11))
sketch7.addConstraint(Sketcher.Constraint("Vertical", 12))
sketch7.addConstraint(Sketcher.Constraint("Horizontal", 13))
sketch7.addConstraint(Sketcher.Constraint("Vertical", 14))
sketch7.addConstraint(Sketcher.Constraint("Horizontal", 15))
sketch7.addConstraint(Sketcher.Constraint("Vertical", 3, 2, 4, 2))
sketch7.addConstraint(Sketcher.Constraint("Vertical", 2, 2, 5, 2))
sketch7.addConstraint(Sketcher.Constraint("Vertical", 7, 2, 8, 2))
sketch7.addConstraint(Sketcher.Constraint("Vertical", 6, 2, 9, 2))
sketch7.addConstraint(Sketcher.Constraint("Vertical", 11, 2, 12, 2))
sketch7.addConstraint(Sketcher.Constraint("Vertical", 10, 2, 13, 2))
sketch7.addConstraint(Sketcher.Constraint("Equal", 2, 4))
sketch7.addConstraint(Sketcher.Constraint("Equal", 6, 8))
sketch7.addConstraint(Sketcher.Constraint("Equal", 10, 12))
sketch7.addConstraint(Sketcher.Constraint("DistanceY", 0, 2, 0, 1, Q("3 mm")))
sketch7.addConstraint(Sketcher.Constraint("DistanceX", 1, 1, 1, 2, Q("17.5 mm")))
sketch7.addConstraint(Sketcher.Constraint("DistanceY", 3, 2, 8, 2, Q("25 mm")))
sketch7.addConstraint(Sketcher.Constraint("DistanceY", 7, 2, 12, 2, Q("25 mm")))
sketch7.addConstraint(Sketcher.Constraint("DistanceY", 3, 2, 4, 2, Q("11.5 mm")))
sketch7.addConstraint(Sketcher.Constraint("DistanceX", -1, 1, 0, 2, Q("3.75 mm")))
sketch7.addConstraint(Sketcher.Constraint("DistanceY", -1, 1, 0, 2, Q("5.25 mm")))
sketch7.setExpression("Constraints[41]", "Params.sketch7_height")
sketch7.setExpression("Constraints[42]", "Params.sketch7_width")
pocket2 = doc.addObject("PartDesign::Pocket", "Pocket001")
body.addObject(pocket2)
pocket2.Profile = sketch7
pocket2.setExpression("Length", "Params.pocket2_length")

sketch8 = doc.addObject("Sketcher::SketchObject", "Sketch007")
body.addObject(sketch8)
sketch8.AttachmentSupport = (doc.XY_Plane, [""])
sketch8.MapMode = "FlatFace"
sketch8.AttachmentOffset = App.Placement(V(0, 0, 26), App.Rotation())
sketch8.addGeometry(Part.Circle(V(12.5, 43, 0), V(0, 0, 1), 4), False)
sketch8.addGeometry(Part.Circle(V(12.5, 13, 0), V(0, 0, 1), 4), False)
sketch8.addConstraint(Sketcher.Constraint("Equal", 0, 1))
sketch8.addConstraint(Sketcher.Constraint("Vertical", 0, 3, 1, 3))
sketch8.addConstraint(Sketcher.Constraint("Diameter", 0, Q("8 mm")))
sketch8.addConstraint(Sketcher.Constraint("DistanceY", -1, 1, 0, 3, Q("43 mm")))
sketch8.addConstraint(Sketcher.Constraint("DistanceY", -1, 1, 1, 3, Q("13 mm")))
sketch8.addConstraint(Sketcher.Constraint("DistanceX", -1, 1, 0, 3, Q("12.5 mm")))
sketch8.setExpression("Constraints[2]", "Params.sketch8_diameter")
pad4 = doc.addObject("PartDesign::Pad", "Pad003")
body.addObject(pad4)
pad4.Profile = sketch8
pad4.setExpression("Length", "Params.pad4_length")

sketch9 = doc.addObject("Sketcher::SketchObject", "Sketch008")
body.addObject(sketch9)
sketch9.AttachmentSupport = (doc.XZ_Plane, [""])
sketch9.MapMode = "FlatFace"
sketch9.addGeometry(Part.Circle(V(12.5, 0, 0), V(0, 0, 1), 4.5), False)
sketch9.addConstraint(Sketcher.Constraint("PointOnObject", 0, 3, -1))
sketch9.addConstraint(Sketcher.Constraint("Diameter", 0, Q("9 mm")))
sketch9.addConstraint(Sketcher.Constraint("DistanceX", -1, 1, 0, 3, Q("12.5 mm")))
sketch9.setExpression("Constraints[1]", "Params.sketch9_diameter")
doc.recompute()
hole3 = doc.addObject("PartDesign::Hole", "Hole002")
body.addObject(hole3)
hole3.Profile = sketch9
hole3.ThreadType = "None"
hole3.setExpression("Diameter", "Params.hole3_diameter")
hole3.DepthType = "ThroughAll"

doc.recompute()
